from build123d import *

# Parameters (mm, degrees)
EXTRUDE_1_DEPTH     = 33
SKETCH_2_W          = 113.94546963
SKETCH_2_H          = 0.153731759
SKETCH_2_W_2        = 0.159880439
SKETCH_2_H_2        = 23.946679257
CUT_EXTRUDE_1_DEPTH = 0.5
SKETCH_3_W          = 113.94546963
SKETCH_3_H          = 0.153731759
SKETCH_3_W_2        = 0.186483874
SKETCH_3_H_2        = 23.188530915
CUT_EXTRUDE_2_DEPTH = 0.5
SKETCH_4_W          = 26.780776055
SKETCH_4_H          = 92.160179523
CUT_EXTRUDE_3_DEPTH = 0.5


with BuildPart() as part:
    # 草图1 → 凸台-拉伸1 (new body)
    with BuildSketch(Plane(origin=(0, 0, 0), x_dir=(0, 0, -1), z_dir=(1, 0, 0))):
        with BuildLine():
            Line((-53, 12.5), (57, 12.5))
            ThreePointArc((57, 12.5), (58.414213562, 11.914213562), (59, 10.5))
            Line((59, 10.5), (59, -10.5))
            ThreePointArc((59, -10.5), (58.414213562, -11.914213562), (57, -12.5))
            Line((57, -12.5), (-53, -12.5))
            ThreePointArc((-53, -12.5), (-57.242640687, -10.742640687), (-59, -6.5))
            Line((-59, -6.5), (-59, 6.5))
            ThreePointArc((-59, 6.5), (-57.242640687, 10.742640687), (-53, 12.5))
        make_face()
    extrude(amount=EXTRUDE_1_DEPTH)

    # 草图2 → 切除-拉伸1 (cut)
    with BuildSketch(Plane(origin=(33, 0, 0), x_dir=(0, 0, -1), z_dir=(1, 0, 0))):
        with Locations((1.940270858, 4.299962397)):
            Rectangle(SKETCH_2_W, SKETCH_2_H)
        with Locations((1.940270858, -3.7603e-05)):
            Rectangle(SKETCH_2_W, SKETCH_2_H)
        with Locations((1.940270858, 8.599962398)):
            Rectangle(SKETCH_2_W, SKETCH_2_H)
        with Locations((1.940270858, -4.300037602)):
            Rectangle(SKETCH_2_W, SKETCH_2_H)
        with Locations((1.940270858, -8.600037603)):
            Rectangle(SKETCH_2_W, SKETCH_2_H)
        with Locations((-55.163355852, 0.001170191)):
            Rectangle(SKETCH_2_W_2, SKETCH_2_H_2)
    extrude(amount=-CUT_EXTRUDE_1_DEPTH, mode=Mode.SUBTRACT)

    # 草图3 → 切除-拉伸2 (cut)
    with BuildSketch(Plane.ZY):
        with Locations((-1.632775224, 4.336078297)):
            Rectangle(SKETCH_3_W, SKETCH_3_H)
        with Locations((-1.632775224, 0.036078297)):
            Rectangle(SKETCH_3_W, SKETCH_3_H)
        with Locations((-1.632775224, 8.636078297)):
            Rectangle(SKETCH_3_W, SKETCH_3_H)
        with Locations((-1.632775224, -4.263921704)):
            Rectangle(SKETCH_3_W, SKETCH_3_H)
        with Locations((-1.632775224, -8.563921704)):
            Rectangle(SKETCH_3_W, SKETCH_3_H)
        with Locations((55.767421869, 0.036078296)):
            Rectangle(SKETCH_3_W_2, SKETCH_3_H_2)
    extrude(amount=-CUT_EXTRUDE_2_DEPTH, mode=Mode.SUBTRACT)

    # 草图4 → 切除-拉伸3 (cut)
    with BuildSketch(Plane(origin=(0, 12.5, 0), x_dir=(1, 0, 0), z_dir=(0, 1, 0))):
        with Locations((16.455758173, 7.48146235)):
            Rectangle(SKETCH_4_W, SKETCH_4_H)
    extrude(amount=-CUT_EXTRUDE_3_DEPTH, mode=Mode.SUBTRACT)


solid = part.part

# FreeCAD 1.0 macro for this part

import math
import FreeCAD as App
import Part
import Sketcher

doc = App.newDocument("Part")
body = doc.addObject("PartDesign::Body", "Body")

# Sketch on YZ plane
sketch1 = body.newObject("Sketcher::SketchObject", "Sketch")
sketch1.AttachmentSupport = (doc.getObject("YZ_Plane"), [""])
sketch1.MapMode = "FlatFace"
sketch1.addGeometry(Part.LineSegment(App.Vector(12.5, -57, 0), App.Vector(12.5, 53, 0)), False)
sketch1.addGeometry(Part.ArcOfCircle(Part.Circle(App.Vector(6.5, 53, 0), App.Vector(0, 0, 1), 6), math.radians(0), math.radians(90)), False)
sketch1.addGeometry(Part.LineSegment(App.Vector(6.5, 59, 0), App.Vector(-6.5, 59, 0)), False)
sketch1.addGeometry(Part.ArcOfCircle(Part.Circle(App.Vector(-6.5, 53, 0), App.Vector(0, 0, 1), 6), math.radians(90), math.radians(180)), False)
sketch1.addGeometry(Part.LineSegment(App.Vector(-12.5, 53, 0), App.Vector(-12.5, -57, 0)), False)
sketch1.addGeometry(Part.ArcOfCircle(Part.Circle(App.Vector(-10.5, -57, 0), App.Vector(0, 0, 1), 2), math.radians(-180), math.radians(-90)), False)
sketch1.addGeometry(Part.LineSegment(App.Vector(-10.5, -59, 0), App.Vector(10.5, -59, 0)), False)
sketch1.addGeometry(Part.ArcOfCircle(Part.Circle(App.Vector(10.5, -57, 0), App.Vector(0, 0, 1), 2), math.radians(-90), math.radians(0)), False)
sketch1.addConstraint(Sketcher.Constraint("Tangent", 0, 2, 1, 1))
sketch1.addConstraint(Sketcher.Constraint("Tangent", 1, 2, 2, 1))
sketch1.addConstraint(Sketcher.Constraint("Tangent", 2, 2, 3, 1))
sketch1.addConstraint(Sketcher.Constraint("Tangent", 3, 2, 4, 1))
sketch1.addConstraint(Sketcher.Constraint("Tangent", 4, 2, 5, 1))
sketch1.addConstraint(Sketcher.Constraint("Tangent", 5, 2, 6, 1))
sketch1.addConstraint(Sketcher.Constraint("Tangent", 6, 2, 7, 1))
sketch1.addConstraint(Sketcher.Constraint("Tangent", 7, 2, 0, 1))
sketch1.addConstraint(Sketcher.Constraint("Vertical", 0))
sketch1.addConstraint(Sketcher.Constraint("Horizontal", 2))
sketch1.addConstraint(Sketcher.Constraint("Vertical", 4))
sketch1.addConstraint(Sketcher.Constraint("Horizontal", 6))
sketch1.addConstraint(Sketcher.Constraint("Equal", 1, 3))
sketch1.addConstraint(Sketcher.Constraint("Equal", 5, 7))
sketch1.addConstraint(Sketcher.Constraint("Radius", 1, 6.0))
sketch1.addConstraint(Sketcher.Constraint("Radius", 5, 2.0))
sketch1.addConstraint(Sketcher.Constraint("DistanceX", 2, 2, 2, 1, 13.0))
sketch1.addConstraint(Sketcher.Constraint("DistanceY", 0, 1, 0, 2, 110.0))
sketch1.addConstraint(Sketcher.Constraint("DistanceY", -1, 1, 1, 3, 53.0))
sketch1.addConstraint(Sketcher.Constraint("DistanceX", -1, 1, 1, 3, 6.5))
pad1 = body.newObject("PartDesign::Pad", "Pad")
pad1.Profile = sketch1
pad1.Length = 33

# Sketch on YZ plane
sketch2 = body.newObject("Sketcher::SketchObject", "Sketch001")
sketch2.AttachmentSupport = (doc.getObject("YZ_Plane"), [""])
sketch2.MapMode = "FlatFace"
sketch2.AttachmentOffset = App.Placement(App.Vector(0, 0, 33), App.Rotation())
sketch2.addGeometry(Part.LineSegment(App.Vector(4.38, 55.03, 0), App.Vector(4.22, 55.03, 0)), False)
sketch2.addGeometry(Part.LineSegment(App.Vector(4.22, 55.03, 0), App.Vector(4.22, -58.91, 0)), False)
sketch2.addGeometry(Part.LineSegment(App.Vector(4.22, -58.91, 0), App.Vector(4.38, -58.91, 0)), False)
sketch2.addGeometry(Part.LineSegment(App.Vector(4.38, -58.91, 0), App.Vector(4.38, 55.03, 0)), False)
sketch2.addGeometry(Part.LineSegment(App.Vector(0.08, 55.03, 0), App.Vector(-0.08, 55.03, 0)), False)
sketch2.addGeometry(Part.LineSegment(App.Vector(-0.08, 55.03, 0), App.Vector(-0.08, -58.91, 0)), False)
sketch2.addGeometry(Part.LineSegment(App.Vector(-0.08, -58.91, 0), App.Vector(0.08, -58.91, 0)), False)
sketch2.addGeometry(Part.LineSegment(App.Vector(0.08, -58.91, 0), App.Vector(0.08, 55.03, 0)), False)
sketch2.addGeometry(Part.LineSegment(App.Vector(8.68, 55.03, 0), App.Vector(8.52, 55.03, 0)), False)
sketch2.addGeometry(Part.LineSegment(App.Vector(8.52, 55.03, 0), App.Vector(8.52, -58.91, 0)), False)
sketch2.addGeometry(Part.LineSegment(App.Vector(8.52, -58.91, 0), App.Vector(8.68, -58.91, 0)), False)
sketch2.addGeometry(Part.LineSegment(App.Vector(8.68, -58.91, 0), App.Vector(8.68, 55.03, 0)), False)
sketch2.addGeometry(Part.LineSegment(App.Vector(-4.22, 55.03, 0), App.Vector(-4.38, 55.03, 0)), False)
sketch2.addGeometry(Part.LineSegment(App.Vector(-4.38, 55.03, 0), App.Vector(-4.38, -58.91, 0)), False)
sketch2.addGeometry(Part.LineSegment(App.Vector(-4.38, -58.91, 0), App.Vector(-4.22, -58.91, 0)), False)
sketch2.addGeometry(Part.LineSegment(App.Vector(-4.22, -58.91, 0), App.Vector(-4.22, 55.03, 0)), False)
sketch2.addGeometry(Part.LineSegment(App.Vector(-8.52, 55.03, 0), App.Vector(-8.68, 55.03, 0)), False)
sketch2.addGeometry(Part.LineSegment(App.Vector(-8.68, 55.03, 0), App.Vector(-8.68, -58.91, 0)), False)
sketch2.addGeometry(Part.LineSegment(App.Vector(-8.68, -58.91, 0), App.Vector(-8.52, -58.91, 0)), False)
sketch2.addGeometry(Part.LineSegment(App.Vector(-8.52, -58.91, 0), App.Vector(-8.52, 55.03, 0)), False)
sketch2.addGeometry(Part.LineSegment(App.Vector(11.97, 55.24, 0), App.Vector(-11.97, 55.24, 0)), False)
sketch2.addGeometry(Part.LineSegment(App.Vector(-11.97, 55.24, 0), App.Vector(-11.97, 55.08, 0)), False)
sketch2.addGeometry(Part.LineSegment(App.Vector(-11.97, 55.08, 0), App.Vector(11.97, 55.08, 0)), False)
sketch2.addGeometry(Part.LineSegment(App.Vector(11.97, 55.08, 0), App.Vector(11.97, 55.24, 0)), False)
sketch2.addConstraint(Sketcher.Constraint("Coincident", 0, 2, 1, 1))
sketch2.addConstraint(Sketcher.Constraint("Coincident", 1, 2, 2, 1))
sketch2.addConstraint(Sketcher.Constraint("Coincident", 2, 2, 3, 1))
sketch2.addConstraint(Sketcher.Constraint("Coincident", 3, 2, 0, 1))
sketch2.addConstraint(Sketcher.Constraint("Coincident", 4, 2, 5, 1))
sketch2.addConstraint(Sketcher.Constraint("Coincident", 5, 2, 6, 1))
sketch2.addConstraint(Sketcher.Constraint("Coincident", 6, 2, 7, 1))
sketch2.addConstraint(Sketcher.Constraint("Coincident", 7, 2, 4, 1))
sketch2.addConstraint(Sketcher.Constraint("Coincident", 8, 2, 9, 1))
sketch2.addConstraint(Sketcher.Constraint("Coincident", 9, 2, 10, 1))
sketch2.addConstraint(Sketcher.Constraint("Coincident", 10, 2, 11, 1))
sketch2.addConstraint(Sketcher.Constraint("Coincident", 11, 2, 8, 1))
sketch2.addConstraint(Sketcher.Constraint("Coincident", 12, 2, 13, 1))
sketch2.addConstraint(Sketcher.Constraint("Coincident", 13, 2, 14, 1))
sketch2.addConstraint(Sketcher.Constraint("Coincident", 14, 2, 15, 1))
sketch2.addConstraint(Sketcher.Constraint("Coincident", 15, 2, 12, 1))
sketch2.addConstraint(Sketcher.Constraint("Coincident", 16, 2, 17, 1))
sketch2.addConstraint(Sketcher.Constraint("Coincident", 17, 2, 18, 1))
sketch2.addConstraint(Sketcher.Constraint("Coincident", 18, 2, 19, 1))
sketch2.addConstraint(Sketcher.Constraint("Coincident", 19, 2, 16, 1))
sketch2.addConstraint(Sketcher.Constraint("Coincident", 20, 2, 21, 1))
sketch2.addConstraint(Sketcher.Constraint("Coincident", 21, 2, 22, 1))
sketch2.addConstraint(Sketcher.Constraint("Coincident", 22, 2, 23, 1))
sketch2.addConstraint(Sketcher.Constraint("Coincident", 23, 2, 20, 1))
sketch2.addConstraint(Sketcher.Constraint("Horizontal", 0))
sketch2.addConstraint(Sketcher.Constraint("Vertical", 1))
sketch2.addConstraint(Sketcher.Constraint("Horizontal", 2))
sketch2.addConstraint(Sketcher.Constraint("Vertical", 3))
sketch2.addConstraint(Sketcher.Constraint("Horizontal", 4))
sketch2.addConstraint(Sketcher.Constraint("Vertical", 5))
sketch2.addConstraint(Sketcher.Constraint("Horizontal", 6))
sketch2.addConstraint(Sketcher.Constraint("Vertical", 7))
sketch2.addConstraint(Sketcher.Constraint("Horizontal", 8))
sketch2.addConstraint(Sketcher.Constraint("Vertical", 9))
sketch2.addConstraint(Sketcher.Constraint("Horizontal", 10))
sketch2.addConstraint(Sketcher.Constraint("Vertical", 11))
sketch2.addConstraint(Sketcher.Constraint("Horizontal", 12))
sketch2.addConstraint(Sketcher.Constraint("Vertical", 13))
sketch2.addConstraint(Sketcher.Constraint("Horizontal", 14))
sketch2.addConstraint(Sketcher.Constraint("Vertical", 15))
sketch2.addConstraint(Sketcher.Constraint("Horizontal", 16))
sketch2.addConstraint(Sketcher.Constraint("Vertical", 17))
sketch2.addConstraint(Sketcher.Constraint("Horizontal", 18))
sketch2.addConstraint(Sketcher.Constraint("Vertical", 19))
sketch2.addConstraint(Sketcher.Constraint("Horizontal", 20))
sketch2.addConstraint(Sketcher.Constraint("Vertical", 21))
sketch2.addConstraint(Sketcher.Constraint("Horizontal", 22))
sketch2.addConstraint(Sketcher.Constraint("Vertical", 23))
sketch2.addConstraint(Sketcher.Constraint("Horizontal", 3, 2, 4, 2))
sketch2.addConstraint(Sketcher.Constraint("Horizontal", 2, 2, 5, 2))
sketch2.addConstraint(Sketcher.Constraint("Horizontal", 7, 2, 8, 2))
sketch2.addConstraint(Sketcher.Constraint("Horizontal", 6, 2, 9, 2))
sketch2.addConstraint(Sketcher.Constraint("Horizontal", 11, 2, 12, 2))
sketch2.addConstraint(Sketcher.Constraint("Horizontal", 10, 2, 13, 2))
sketch2.addConstraint(Sketcher.Constraint("Horizontal", 15, 2, 16, 2))
sketch2.addConstraint(Sketcher.Constraint("Horizontal", 14, 2, 17, 2))
sketch2.addConstraint(Sketcher.Constraint("Equal", 2, 4))
sketch2.addConstraint(Sketcher.Constraint("Equal", 6, 8))
sketch2.addConstraint(Sketcher.Constraint("Equal", 10, 12))
sketch2.addConstraint(Sketcher.Constraint("Equal", 14, 16))
sketch2.addConstraint(Sketcher.Constraint("DistanceX", 4, 2, 0, 2, 4.3))
sketch2.addConstraint(Sketcher.Constraint("DistanceX", 0, 2, 8, 2, 4.3))
sketch2.addConstraint(Sketcher.Constraint("DistanceX", 12, 2, 4, 2, 4.3))
sketch2.addConstraint(Sketcher.Constraint("DistanceX", 16, 2, 12, 2, 4.3))
sketch2.addConstraint(Sketcher.Constraint("DistanceX", 0, 2, 0, 1, 0.153732))
sketch2.addConstraint(Sketcher.Constraint("DistanceX", 20, 2, 20, 1, 23.946679))
sketch2.addConstraint(Sketcher.Constraint("DistanceY", 1, 2, 1, 1, 113.94547))
sketch2.addConstraint(Sketcher.Constraint("DistanceY", 21, 2, 21, 1, 0.15988))
sketch2.addConstraint(Sketcher.Constraint("DistanceX", -1, 1, 2, 2, 4.376828))
sketch2.addConstraint(Sketcher.Constraint("DistanceX", 20, 2, -1, 1, 11.972169))
sketch2.addConstraint(Sketcher.Constraint("DistanceY", 16, 2, 21, 2, 0.050952))
sketch2.addConstraint(Sketcher.Constraint("DistanceY", -1, 1, 0, 2, 55.032464))
pocket1 = body.newObject("PartDesign::Pocket", "Pocket")
pocket1.Profile = sketch2
pocket1.Length = 0.5

# Sketch on YZ plane
sketch3 = body.newObject("Sketcher::SketchObject", "Sketch002")
sketch3.AttachmentSupport = (doc.getObject("YZ_Plane"), [""])
sketch3.MapMode = "FlatFace"
sketch3.addGeometry(Part.LineSegment(App.Vector(4.41, -58.61, 0), App.Vector(4.26, -58.61, 0)), False)
sketch3.addGeometry(Part.LineSegment(App.Vector(4.26, -58.61, 0), App.Vector(4.26, 55.34, 0)), False)
sketch3.addGeometry(Part.LineSegment(App.Vector(4.26, 55.34, 0), App.Vector(4.41, 55.34, 0)), False)
sketch3.addGeometry(Part.LineSegment(App.Vector(4.41, 55.34, 0), App.Vector(4.41, -58.61, 0)), False)
sketch3.addGeometry(Part.LineSegment(App.Vector(0.11, -58.61, 0), App.Vector(-0.04, -58.61, 0)), False)
sketch3.addGeometry(Part.LineSegment(App.Vector(-0.04, -58.61, 0), App.Vector(-0.04, 55.34, 0)), False)
sketch3.addGeometry(Part.LineSegment(App.Vector(-0.04, 55.34, 0), App.Vector(0.11, 55.34, 0)), False)
sketch3.addGeometry(Part.LineSegment(App.Vector(0.11, 55.34, 0), App.Vector(0.11, -58.61, 0)), False)
sketch3.addGeometry(Part.LineSegment(App.Vector(8.71, -58.61, 0), App.Vector(8.56, -58.61, 0)), False)
sketch3.addGeometry(Part.LineSegment(App.Vector(8.56, -58.61, 0), App.Vector(8.56, 55.34, 0)), False)
sketch3.addGeometry(Part.LineSegment(App.Vector(8.56, 55.34, 0), App.Vector(8.71, 55.34, 0)), False)
sketch3.addGeometry(Part.LineSegment(App.Vector(8.71, 55.34, 0), App.Vector(8.71, -58.61, 0)), False)
sketch3.addGeometry(Part.LineSegment(App.Vector(-4.19, -58.61, 0), App.Vector(-4.34, -58.61, 0)), False)
sketch3.addGeometry(Part.LineSegment(App.Vector(-4.34, -58.61, 0), App.Vector(-4.34, 55.34, 0)), False)
sketch3.addGeometry(Part.LineSegment(App.Vector(-4.34, 55.34, 0), App.Vector(-4.19, 55.34, 0)), False)
sketch3.addGeometry(Part.LineSegment(App.Vector(-4.19, 55.34, 0), App.Vector(-4.19, -58.61, 0)), False)
sketch3.addGeometry(Part.LineSegment(App.Vector(-8.49, -58.61, 0), App.Vector(-8.64, -58.61, 0)), False)
sketch3.addGeometry(Part.LineSegment(App.Vector(-8.64, -58.61, 0), App.Vector(-8.64, 55.34, 0)), False)
sketch3.addGeometry(Part.LineSegment(App.Vector(-8.64, 55.34, 0), App.Vector(-8.49, 55.34, 0)), False)
sketch3.addGeometry(Part.LineSegment(App.Vector(-8.49, 55.34, 0), App.Vector(-8.49, -58.61, 0)), False)
sketch3.addGeometry(Part.LineSegment(App.Vector(11.63, 55.67, 0), App.Vector(-11.56, 55.67, 0)), False)
sketch3.addGeometry(Part.LineSegment(App.Vector(-11.56, 55.67, 0), App.Vector(-11.56, 55.86, 0)), False)
sketch3.addGeometry(Part.LineSegment(App.Vector(-11.56, 55.86, 0), App.Vector(11.63, 55.86, 0)), False)
sketch3.addGeometry(Part.LineSegment(App.Vector(11.63, 55.86, 0), App.Vector(11.63, 55.67, 0)), False)
sketch3.addConstraint(Sketcher.Constraint("Coincident", 0, 2, 1, 1))
sketch3.addConstraint(Sketcher.Constraint("Coincident", 1, 2, 2, 1))
sketch3.addConstraint(Sketcher.Constraint("Coincident", 2, 2, 3, 1))
sketch3.addConstraint(Sketcher.Constraint("Coincident", 3, 2, 0, 1))
sketch3.addConstraint(Sketcher.Constraint("Coincident", 4, 2, 5, 1))
sketch3.addConstraint(Sketcher.Constraint("Coincident", 5, 2, 6, 1))
sketch3.addConstraint(Sketcher.Constraint("Coincident", 6, 2, 7, 1))
sketch3.addConstraint(Sketcher.Constraint("Coincident", 7, 2, 4, 1))
sketch3.addConstraint(Sketcher.Constraint("Coincident", 8, 2, 9, 1))
sketch3.addConstraint(Sketcher.Constraint("Coincident", 9, 2, 10, 1))
sketch3.addConstraint(Sketcher.Constraint("Coincident", 10, 2, 11, 1))
sketch3.addConstraint(Sketcher.Constraint("Coincident", 11, 2, 8, 1))
sketch3.addConstraint(Sketcher.Constraint("Coincident", 12, 2, 13, 1))
sketch3.addConstraint(Sketcher.Constraint("Coincident", 13, 2, 14, 1))
sketch3.addConstraint(Sketcher.Constraint("Coincident", 14, 2, 15, 1))
sketch3.addConstraint(Sketcher.Constraint("Coincident", 15, 2, 12, 1))
sketch3.addConstraint(Sketcher.Constraint("Coincident", 16, 2, 17, 1))
sketch3.addConstraint(Sketcher.Constraint("Coincident", 17, 2, 18, 1))
sketch3.addConstraint(Sketcher.Constraint("Coincident", 18, 2, 19, 1))
sketch3.addConstraint(Sketcher.Constraint("Coincident", 19, 2, 16, 1))
sketch3.addConstraint(Sketcher.Constraint("Coincident", 20, 2, 21, 1))
sketch3.addConstraint(Sketcher.Constraint("Coincident", 21, 2, 22, 1))
sketch3.addConstraint(Sketcher.Constraint("Coincident", 22, 2, 23, 1))
sketch3.addConstraint(Sketcher.Constraint("Coincident", 23, 2, 20, 1))
sketch3.addConstraint(Sketcher.Constraint("Horizontal", 0))
sketch3.addConstraint(Sketcher.Constraint("Vertical", 1))
sketch3.addConstraint(Sketcher.Constraint("Horizontal", 2))
sketch3.addConstraint(Sketcher.Constraint("Vertical", 3))
sketch3.addConstraint(Sketcher.Constraint("Horizontal", 4))
sketch3.addConstraint(Sketcher.Constraint("Vertical", 5))
sketch3.addConstraint(Sketcher.Constraint("Horizontal", 6))
sketch3.addConstraint(Sketcher.Constraint("Vertical", 7))
sketch3.addConstraint(Sketcher.Constraint("Horizontal", 8))
sketch3.addConstraint(Sketcher.Constraint("Vertical", 9))
sketch3.addConstraint(Sketcher.Constraint("Horizontal", 10))
sketch3.addConstraint(Sketcher.Constraint("Vertical", 11))
sketch3.addConstraint(Sketcher.Constraint("Horizontal", 12))
sketch3.addConstraint(Sketcher.Constraint("Vertical", 13))
sketch3.addConstraint(Sketcher.Constraint("Horizontal", 14))
sketch3.addConstraint(Sketcher.Constraint("Vertical", 15))
sketch3.addConstraint(Sketcher.Constraint("Horizontal", 16))
sketch3.addConstraint(Sketcher.Constraint("Vertical", 17))
sketch3.addConstraint(Sketcher.Constraint("Horizontal", 18))
sketch3.addConstraint(Sketcher.Constraint("Vertical", 19))
sketch3.addConstraint(Sketcher.Constraint("Horizontal", 20))
sketch3.addConstraint(Sketcher.Constraint("Vertical", 21))
sketch3.addConstraint(Sketcher.Constraint("Horizontal", 22))
sketch3.addConstraint(Sketcher.Constraint("Vertical", 23))
sketch3.addConstraint(Sketcher.Constraint("Horizontal", 3, 2, 4, 2))
sketch3.addConstraint(Sketcher.Constraint("Horizontal", 2, 2, 5, 2))
sketch3.addConstraint(Sketcher.Constraint("Horizontal", 7, 2, 8, 2))
sketch3.addConstraint(Sketcher.Constraint("Horizontal", 6, 2, 9, 2))
sketch3.addConstraint(Sketcher.Constraint("Horizontal", 11, 2, 12, 2))
sketch3.addConstraint(Sketcher.Constraint("Horizontal", 10, 2, 13, 2))
sketch3.addConstraint(Sketcher.Constraint("Horizontal", 15, 2, 16, 2))
sketch3.addConstraint(Sketcher.Constraint("Horizontal", 14, 2, 17, 2))
sketch3.addConstraint(Sketcher.Constraint("Equal", 2, 4))
sketch3.addConstraint(Sketcher.Constraint("Equal", 6, 8))
sketch3.addConstraint(Sketcher.Constraint("Equal", 10, 12))
sketch3.addConstraint(Sketcher.Constraint("Equal", 14, 16))
sketch3.addConstraint(Sketcher.Constraint("DistanceX", 4, 2, 0, 2, 4.3))
sketch3.addConstraint(Sketcher.Constraint("DistanceX", 0, 2, 8, 2, 4.3))
sketch3.addConstraint(Sketcher.Constraint("DistanceX", 12, 2, 4, 2, 4.3))
sketch3.addConstraint(Sketcher.Constraint("DistanceX", 16, 2, 12, 2, 4.3))
sketch3.addConstraint(Sketcher.Constraint("DistanceX", 0, 2, 0, 1, 0.153732))
sketch3.addConstraint(Sketcher.Constraint("DistanceX", 20, 2, 20, 1, 23.188531))
sketch3.addConstraint(Sketcher.Constraint("DistanceY", 1, 1, 1, 2, 113.94547))
sketch3.addConstraint(Sketcher.Constraint("DistanceX", 20, 2, 17, 2, 2.9174))
sketch3.addConstraint(Sketcher.Constraint("DistanceY", 21, 1, 21, 2, 0.186484))
sketch3.addConstraint(Sketcher.Constraint("DistanceY", 0, 2, -1, 1, 58.60551))
sketch3.addConstraint(Sketcher.Constraint("DistanceY", -1, 1, 20, 2, 55.67418))
sketch3.addConstraint(Sketcher.Constraint("DistanceX", -1, 1, 0, 2, 4.259212))
pocket2 = body.newObject("PartDesign::Pocket", "Pocket001")
pocket2.Profile = sketch3
pocket2.Length = 0.5
pocket2.Reversed = True

# Sketch on XZ plane
sketch4 = body.newObject("Sketcher::SketchObject", "Sketch003")
sketch4.AttachmentSupport = (doc.getObject("XZ_Plane"), [""])
sketch4.MapMode = "FlatFace"
sketch4.AttachmentOffset = App.Placement(App.Vector(0, 0, -12.5), App.Rotation())
sketch4.addGeometry(Part.LineSegment(App.Vector(3, -54, 0), App.Vector(3, 39, 0)), False)
sketch4.addGeometry(Part.LineSegment(App.Vector(3, 39, 0), App.Vector(30, 39, 0)), False)
sketch4.addGeometry(Part.LineSegment(App.Vector(30, 39, 0), App.Vector(30, -54, 0)), False)
sketch4.addGeometry(Part.LineSegment(App.Vector(30, -54, 0), App.Vector(3, -54, 0)), False)
sketch4.addConstraint(Sketcher.Constraint("Coincident", 0, 2, 1, 1))
sketch4.addConstraint(Sketcher.Constraint("Coincident", 1, 2, 2, 1))
sketch4.addConstraint(Sketcher.Constraint("Coincident", 2, 2, 3, 1))
sketch4.addConstraint(Sketcher.Constraint("Coincident", 3, 2, 0, 1))
sketch4.addConstraint(Sketcher.Constraint("Vertical", 0))
sketch4.addConstraint(Sketcher.Constraint("Horizontal", 1))
sketch4.addConstraint(Sketcher.Constraint("Vertical", 2))
sketch4.addConstraint(Sketcher.Constraint("Horizontal", 3))
sketch4.addConstraint(Sketcher.Constraint("DistanceY", 0, 1, 0, 2, 92.16018))
sketch4.addConstraint(Sketcher.Constraint("DistanceX", 1, 1, 1, 2, 26.780776))
sketch4.addConstraint(Sketcher.Constraint("DistanceX", -1, 1, 0, 2, 3.06537))
sketch4.addConstraint(Sketcher.Constraint("DistanceY", -1, 1, 0, 2, 38.598627))
pocket3 = body.newObject("PartDesign::Pocket", "Pocket002")
pocket3.Profile = sketch4
pocket3.Length = 0.5
pocket3.Reversed = True

doc.recompute()
